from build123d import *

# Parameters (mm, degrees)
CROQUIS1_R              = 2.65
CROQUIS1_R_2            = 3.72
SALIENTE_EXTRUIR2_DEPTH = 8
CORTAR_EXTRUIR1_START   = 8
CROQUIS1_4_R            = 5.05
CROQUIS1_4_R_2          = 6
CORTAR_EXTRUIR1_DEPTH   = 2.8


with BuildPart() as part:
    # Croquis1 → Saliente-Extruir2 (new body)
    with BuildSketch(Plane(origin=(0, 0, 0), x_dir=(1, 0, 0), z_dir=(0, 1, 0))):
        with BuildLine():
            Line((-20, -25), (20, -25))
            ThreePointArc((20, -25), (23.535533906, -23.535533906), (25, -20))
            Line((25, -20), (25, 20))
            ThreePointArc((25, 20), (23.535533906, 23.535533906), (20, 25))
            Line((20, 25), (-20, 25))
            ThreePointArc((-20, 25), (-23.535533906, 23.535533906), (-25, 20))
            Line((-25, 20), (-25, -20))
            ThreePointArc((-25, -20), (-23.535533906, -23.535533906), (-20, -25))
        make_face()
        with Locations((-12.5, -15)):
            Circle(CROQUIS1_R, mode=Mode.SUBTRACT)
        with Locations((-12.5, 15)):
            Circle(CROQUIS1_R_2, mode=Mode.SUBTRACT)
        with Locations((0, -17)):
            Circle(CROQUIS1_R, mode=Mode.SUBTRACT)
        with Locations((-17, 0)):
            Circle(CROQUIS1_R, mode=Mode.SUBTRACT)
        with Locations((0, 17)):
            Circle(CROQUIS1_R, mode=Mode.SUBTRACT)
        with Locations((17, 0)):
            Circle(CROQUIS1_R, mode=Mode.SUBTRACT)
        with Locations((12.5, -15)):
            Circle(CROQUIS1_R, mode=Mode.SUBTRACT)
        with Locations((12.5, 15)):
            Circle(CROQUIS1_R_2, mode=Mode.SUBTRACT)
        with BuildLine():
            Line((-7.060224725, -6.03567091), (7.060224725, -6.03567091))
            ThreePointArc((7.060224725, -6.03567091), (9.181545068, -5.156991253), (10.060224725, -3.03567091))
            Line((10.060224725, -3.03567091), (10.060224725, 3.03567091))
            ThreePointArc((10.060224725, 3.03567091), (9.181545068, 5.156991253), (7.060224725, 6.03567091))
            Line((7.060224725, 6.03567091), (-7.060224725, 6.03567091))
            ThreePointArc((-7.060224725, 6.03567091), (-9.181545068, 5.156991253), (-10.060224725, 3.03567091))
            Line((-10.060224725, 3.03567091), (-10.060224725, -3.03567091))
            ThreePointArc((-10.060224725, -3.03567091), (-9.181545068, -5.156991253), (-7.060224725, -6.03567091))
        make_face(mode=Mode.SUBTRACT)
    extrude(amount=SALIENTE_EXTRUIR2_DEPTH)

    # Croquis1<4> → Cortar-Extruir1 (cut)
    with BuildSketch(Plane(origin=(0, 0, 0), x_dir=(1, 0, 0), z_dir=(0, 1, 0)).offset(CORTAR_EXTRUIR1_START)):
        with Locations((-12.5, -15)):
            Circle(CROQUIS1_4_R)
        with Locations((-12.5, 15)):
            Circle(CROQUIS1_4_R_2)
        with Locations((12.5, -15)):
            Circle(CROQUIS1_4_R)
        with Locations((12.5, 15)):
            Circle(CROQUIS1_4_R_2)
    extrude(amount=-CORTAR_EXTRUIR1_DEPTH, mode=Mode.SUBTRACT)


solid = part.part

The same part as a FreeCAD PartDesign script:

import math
import FreeCAD as App
import Part
import Sketcher

V = App.Vector

doc = App.newDocument("Part")
body = doc.addObject("PartDesign::Body", "Body")

# Sketch on XZ plane
sketch1 = body.newObject("Sketcher::SketchObject", "Sketch")
sketch1.AttachmentSupport = (doc.getObject("XZ_Plane"), [""])
sketch1.MapMode = "FlatFace"
sketch1.addGeometry([
    Part.LineSegment(V(-20, 25, 0), V(20, 25, 0)),  # 0
    Part.ArcOfCircle(Part.Circle(V(20, 20, 0), V(0, 0, 1), 5), math.radians(0), math.radians(90)),  # 1
    Part.LineSegment(V(25, 20, 0), V(25, -20, 0)),  # 2
    Part.ArcOfCircle(Part.Circle(V(20, -20, 0), V(0, 0, 1), 5), math.radians(-90), math.radians(0)),  # 3
    Part.LineSegment(V(20, -25, 0), V(-20, -25, 0)),  # 4
    Part.ArcOfCircle(Part.Circle(V(-20, -20, 0), V(0, 0, 1), 5), math.radians(180), math.radians(270)),  # 5
    Part.LineSegment(V(-25, -20, 0), V(-25, 20, 0)),  # 6
    Part.ArcOfCircle(Part.Circle(V(-20, 20, 0), V(0, 0, 1), 5), math.radians(90), math.radians(180)),  # 7
    Part.Circle(V(-12.5, 15, 0), V(0, 0, 1), 2.65),  # 8
    Part.Circle(V(0, 17, 0), V(0, 0, 1), 2.65),  # 9
    Part.Circle(V(12.5, 15, 0), V(0, 0, 1), 2.65),  # 10
    Part.Circle(V(-17, 0, 0), V(0, 0, 1), 2.65),  # 11
    Part.Circle(V(-12.5, -15, 0), V(0, 0, 1), 3.72),  # 12
    Part.LineSegment(V(7.060225, 6.035671, 0), V(-7.060225, 6.035671, 0)),  # 13
    Part.ArcOfCircle(Part.Circle(V(-7.060225, 3.035671, 0), V(0, 0, 1), 3), math.radians(90), math.radians(180)),  # 14
    Part.LineSegment(V(-10.060225, 3.035671, 0), V(-10.060225, -3.035671, 0)),  # 15
    Part.ArcOfCircle(Part.Circle(V(-7.060225, -3.035671, 0), V(0, 0, 1), 3), math.radians(-180), math.radians(-90)),  # 16
    Part.LineSegment(V(-7.060225, -6.035671, 0), V(7.060225, -6.035671, 0)),  # 17
    Part.ArcOfCircle(Part.Circle(V(7.060225, -3.035671, 0), V(0, 0, 1), 3), math.radians(-90), math.radians(0)),  # 18
    Part.LineSegment(V(10.060225, -3.035671, 0), V(10.060225, 3.035671, 0)),  # 19
    Part.ArcOfCircle(Part.Circle(V(7.060225, 3.035671, 0), V(0, 0, 1), 3), math.radians(0), math.radians(90)),  # 20
    Part.Circle(V(17, 0, 0), V(0, 0, 1), 2.65),  # 21
    Part.Circle(V(0, -17, 0), V(0, 0, 1), 2.65),  # 22
    Part.Circle(V(12.5, -15, 0), V(0, 0, 1), 3.72),  # 23
], False)
sketch1.addConstraint([
    Sketcher.Constraint("Tangent", 0, 2, 1, 2),
    Sketcher.Constraint("Tangent", 1, 1, 2, 1),
    Sketcher.Constraint("Tangent", 2, 2, 3, 2),
    Sketcher.Constraint("Tangent", 3, 1, 4, 1),
    Sketcher.Constraint("Tangent", 4, 2, 5, 2),
    Sketcher.Constraint("Tangent", 5, 1, 6, 1),
    Sketcher.Constraint("Tangent", 6, 2, 7, 2),
    Sketcher.Constraint("Tangent", 7, 1, 0, 1),
    Sketcher.Constraint("Tangent", 13, 2, 14, 1),
    Sketcher.Constraint("Tangent", 14, 2, 15, 1),
    Sketcher.Constraint("Tangent", 15, 2, 16, 1),
    Sketcher.Constraint("Tangent", 16, 2, 17, 1),
    Sketcher.Constraint("Tangent", 17, 2, 18, 1),
    Sketcher.Constraint("Tangent", 18, 2, 19, 1),
    Sketcher.Constraint("Tangent", 19, 2, 20, 1),
    Sketcher.Constraint("Tangent", 20, 2, 13, 1),
    Sketcher.Constraint("Horizontal", 0),
    Sketcher.Constraint("Vertical", 2),
    Sketcher.Constraint("Horizontal", 4),
    Sketcher.Constraint("Vertical", 6),
    Sketcher.Constraint("Horizontal", 13),
    Sketcher.Constraint("Vertical", 15),
    Sketcher.Constraint("Horizontal", 17),
    Sketcher.Constraint("Vertical", 19),
    Sketcher.Constraint("Equal", 1, 3),
    Sketcher.Constraint("Equal", 3, 5),
    Sketcher.Constraint("Equal", 5, 7),
    Sketcher.Constraint("Equal", 8, 9),
    Sketcher.Constraint("Equal", 9, 10),
    Sketcher.Constraint("Equal", 10, 11),
    Sketcher.Constraint("Equal", 14, 16),
    Sketcher.Constraint("Equal", 16, 18),
    Sketcher.Constraint("Equal", 18, 20),
    Sketcher.Constraint("Equal", 11, 21),
    Sketcher.Constraint("Equal", 21, 22),
    Sketcher.Constraint("Equal", 12, 23),
    Sketcher.Constraint("Symmetric", 1, 3, 5, 3, -1, 1),
    Sketcher.Constraint("Symmetric", 10, 3, 12, 3, -1, 1),
    Sketcher.Constraint("Symmetric", 14, 3, 18, 3, -1, 1),
    Sketcher.Constraint("Symmetric", 11, 3, 21, 3, -1, 1),
    Sketcher.Constraint("Symmetric", 9, 3, 22, 3, -1, 1),
    Sketcher.Constraint("Symmetric", 8, 3, 23, 3, -1, 1),
    Sketcher.Constraint("Symmetric", 8, 3, 10, 3, -2),
    Sketcher.Constraint("PointOnObject", 9, 3, -2),
    Sketcher.Constraint("PointOnObject", 11, 3, -1),
    Sketcher.Constraint("Equal", 4, 2),
    Sketcher.Constraint("Radius", 1, 5.0),
    Sketcher.Constraint("Radius", 14, 3.0),
    Sketcher.Constraint("Diameter", 8, 5.3),
    Sketcher.Constraint("Diameter", 12, 7.44),
    Sketcher.Constraint("DistanceX", 0, 1, 0, 2, 40.0),
    Sketcher.Constraint("DistanceY", -1, 1, 8, 3, 15.0),
    Sketcher.Constraint("DistanceY", -1, 1, 9, 3, 17.0),
    Sketcher.Constraint("DistanceX", 11, 3, -1, 1, 17.0),
    Sketcher.Constraint("DistanceX", 8, 3, 10, 3, 25.0),
    Sketcher.Constraint("DistanceX", 13, 2, 13, 1, 14.120449),
    Sketcher.Constraint("DistanceY", 15, 2, 15, 1, 6.071342),
])
pad1 = body.newObject("PartDesign::Pad", "Pad")
pad1.Profile = sketch1
pad1.Length = 8
pad1.Reversed = True

# Sketch on XZ plane
sketch2 = body.newObject("Sketcher::SketchObject", "Sketch001")
sketch2.AttachmentSupport = (doc.getObject("XZ_Plane"), [""])
sketch2.MapMode = "FlatFace"
sketch2.AttachmentOffset = App.Placement(V(0, 0, -8), App.Rotation())
sketch2.addGeometry([
    Part.Circle(V(-12.5, 15, 0), V(0, 0, 1), 5.05),
    Part.Circle(V(-12.5, -15, 0), V(0, 0, 1), 6),
    Part.Circle(V(12.5, 15, 0), V(0, 0, 1), 5.05),
    Part.Circle(V(12.5, -15, 0), V(0, 0, 1), 6),
], False)
sketch2.addConstraint([
    Sketcher.Constraint("Equal", 0, 2),
    Sketcher.Constraint("Equal", 1, 3),
    Sketcher.Constraint("Symmetric", 1, 3, 2, 3, -1, 1),
    Sketcher.Constraint("Symmetric", 0, 3, 3, 3, -1, 1),
    Sketcher.Constraint("Symmetric", 0, 3, 2, 3, -2),
    Sketcher.Constraint("Diameter", 1, 12.0),
    Sketcher.Constraint("Diameter", 0, 10.1),
    Sketcher.Constraint("DistanceY", -1, 1, 0, 3, 15.0),
    Sketcher.Constraint("DistanceX", 0, 3, 2, 3, 25.0),
])
pocket1 = body.newObject("PartDesign::Pocket", "Pocket")
pocket1.Profile = sketch2
pocket1.Length = 2.8
pocket1.Reversed = True

doc.recompute()
